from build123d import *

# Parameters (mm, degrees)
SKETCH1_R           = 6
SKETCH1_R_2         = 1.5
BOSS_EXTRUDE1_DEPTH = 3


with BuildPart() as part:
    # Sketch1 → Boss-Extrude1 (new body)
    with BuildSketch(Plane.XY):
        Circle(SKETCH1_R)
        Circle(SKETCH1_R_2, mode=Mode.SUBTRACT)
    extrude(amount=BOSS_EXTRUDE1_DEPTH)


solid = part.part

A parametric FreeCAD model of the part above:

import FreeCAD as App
import Part
import Sketcher

doc = App.newDocument("Part")
body = doc.addObject("PartDesign::Body", "Body")

# Sketch on XY plane
sketch1 = doc.addObject("Sketcher::SketchObject", "Sketch")
body.addObject(sketch1)
sketch1.AttachmentSupport = (doc.XY_Plane, [""])
sketch1.MapMode = "FlatFace"
sketch1.addGeometry(Part.Circle(App.Vector(0, 0, 0), App.Vector(0, 0, 1), 6), False)
sketch1.addGeometry(Part.Circle(App.Vector(0, 0, 0), App.Vector(0, 0, 1), 1.5), False)
sketch1.addConstraint(Sketcher.Constraint("Coincident", 0, 3, -1, 1))
sketch1.addConstraint(Sketcher.Constraint("Coincident", 1, 3, -1, 1))
sketch1.addConstraint(Sketcher.Constraint("Diameter", 0, 12.0))
sketch1.addConstraint(Sketcher.Constraint("Diameter", 1, 3.0))
pad1 = doc.addObject("PartDesign::Pad", "Pad")
body.addObject(pad1)
pad1.Profile = sketch1
pad1.Length = 3

doc.recompute()
